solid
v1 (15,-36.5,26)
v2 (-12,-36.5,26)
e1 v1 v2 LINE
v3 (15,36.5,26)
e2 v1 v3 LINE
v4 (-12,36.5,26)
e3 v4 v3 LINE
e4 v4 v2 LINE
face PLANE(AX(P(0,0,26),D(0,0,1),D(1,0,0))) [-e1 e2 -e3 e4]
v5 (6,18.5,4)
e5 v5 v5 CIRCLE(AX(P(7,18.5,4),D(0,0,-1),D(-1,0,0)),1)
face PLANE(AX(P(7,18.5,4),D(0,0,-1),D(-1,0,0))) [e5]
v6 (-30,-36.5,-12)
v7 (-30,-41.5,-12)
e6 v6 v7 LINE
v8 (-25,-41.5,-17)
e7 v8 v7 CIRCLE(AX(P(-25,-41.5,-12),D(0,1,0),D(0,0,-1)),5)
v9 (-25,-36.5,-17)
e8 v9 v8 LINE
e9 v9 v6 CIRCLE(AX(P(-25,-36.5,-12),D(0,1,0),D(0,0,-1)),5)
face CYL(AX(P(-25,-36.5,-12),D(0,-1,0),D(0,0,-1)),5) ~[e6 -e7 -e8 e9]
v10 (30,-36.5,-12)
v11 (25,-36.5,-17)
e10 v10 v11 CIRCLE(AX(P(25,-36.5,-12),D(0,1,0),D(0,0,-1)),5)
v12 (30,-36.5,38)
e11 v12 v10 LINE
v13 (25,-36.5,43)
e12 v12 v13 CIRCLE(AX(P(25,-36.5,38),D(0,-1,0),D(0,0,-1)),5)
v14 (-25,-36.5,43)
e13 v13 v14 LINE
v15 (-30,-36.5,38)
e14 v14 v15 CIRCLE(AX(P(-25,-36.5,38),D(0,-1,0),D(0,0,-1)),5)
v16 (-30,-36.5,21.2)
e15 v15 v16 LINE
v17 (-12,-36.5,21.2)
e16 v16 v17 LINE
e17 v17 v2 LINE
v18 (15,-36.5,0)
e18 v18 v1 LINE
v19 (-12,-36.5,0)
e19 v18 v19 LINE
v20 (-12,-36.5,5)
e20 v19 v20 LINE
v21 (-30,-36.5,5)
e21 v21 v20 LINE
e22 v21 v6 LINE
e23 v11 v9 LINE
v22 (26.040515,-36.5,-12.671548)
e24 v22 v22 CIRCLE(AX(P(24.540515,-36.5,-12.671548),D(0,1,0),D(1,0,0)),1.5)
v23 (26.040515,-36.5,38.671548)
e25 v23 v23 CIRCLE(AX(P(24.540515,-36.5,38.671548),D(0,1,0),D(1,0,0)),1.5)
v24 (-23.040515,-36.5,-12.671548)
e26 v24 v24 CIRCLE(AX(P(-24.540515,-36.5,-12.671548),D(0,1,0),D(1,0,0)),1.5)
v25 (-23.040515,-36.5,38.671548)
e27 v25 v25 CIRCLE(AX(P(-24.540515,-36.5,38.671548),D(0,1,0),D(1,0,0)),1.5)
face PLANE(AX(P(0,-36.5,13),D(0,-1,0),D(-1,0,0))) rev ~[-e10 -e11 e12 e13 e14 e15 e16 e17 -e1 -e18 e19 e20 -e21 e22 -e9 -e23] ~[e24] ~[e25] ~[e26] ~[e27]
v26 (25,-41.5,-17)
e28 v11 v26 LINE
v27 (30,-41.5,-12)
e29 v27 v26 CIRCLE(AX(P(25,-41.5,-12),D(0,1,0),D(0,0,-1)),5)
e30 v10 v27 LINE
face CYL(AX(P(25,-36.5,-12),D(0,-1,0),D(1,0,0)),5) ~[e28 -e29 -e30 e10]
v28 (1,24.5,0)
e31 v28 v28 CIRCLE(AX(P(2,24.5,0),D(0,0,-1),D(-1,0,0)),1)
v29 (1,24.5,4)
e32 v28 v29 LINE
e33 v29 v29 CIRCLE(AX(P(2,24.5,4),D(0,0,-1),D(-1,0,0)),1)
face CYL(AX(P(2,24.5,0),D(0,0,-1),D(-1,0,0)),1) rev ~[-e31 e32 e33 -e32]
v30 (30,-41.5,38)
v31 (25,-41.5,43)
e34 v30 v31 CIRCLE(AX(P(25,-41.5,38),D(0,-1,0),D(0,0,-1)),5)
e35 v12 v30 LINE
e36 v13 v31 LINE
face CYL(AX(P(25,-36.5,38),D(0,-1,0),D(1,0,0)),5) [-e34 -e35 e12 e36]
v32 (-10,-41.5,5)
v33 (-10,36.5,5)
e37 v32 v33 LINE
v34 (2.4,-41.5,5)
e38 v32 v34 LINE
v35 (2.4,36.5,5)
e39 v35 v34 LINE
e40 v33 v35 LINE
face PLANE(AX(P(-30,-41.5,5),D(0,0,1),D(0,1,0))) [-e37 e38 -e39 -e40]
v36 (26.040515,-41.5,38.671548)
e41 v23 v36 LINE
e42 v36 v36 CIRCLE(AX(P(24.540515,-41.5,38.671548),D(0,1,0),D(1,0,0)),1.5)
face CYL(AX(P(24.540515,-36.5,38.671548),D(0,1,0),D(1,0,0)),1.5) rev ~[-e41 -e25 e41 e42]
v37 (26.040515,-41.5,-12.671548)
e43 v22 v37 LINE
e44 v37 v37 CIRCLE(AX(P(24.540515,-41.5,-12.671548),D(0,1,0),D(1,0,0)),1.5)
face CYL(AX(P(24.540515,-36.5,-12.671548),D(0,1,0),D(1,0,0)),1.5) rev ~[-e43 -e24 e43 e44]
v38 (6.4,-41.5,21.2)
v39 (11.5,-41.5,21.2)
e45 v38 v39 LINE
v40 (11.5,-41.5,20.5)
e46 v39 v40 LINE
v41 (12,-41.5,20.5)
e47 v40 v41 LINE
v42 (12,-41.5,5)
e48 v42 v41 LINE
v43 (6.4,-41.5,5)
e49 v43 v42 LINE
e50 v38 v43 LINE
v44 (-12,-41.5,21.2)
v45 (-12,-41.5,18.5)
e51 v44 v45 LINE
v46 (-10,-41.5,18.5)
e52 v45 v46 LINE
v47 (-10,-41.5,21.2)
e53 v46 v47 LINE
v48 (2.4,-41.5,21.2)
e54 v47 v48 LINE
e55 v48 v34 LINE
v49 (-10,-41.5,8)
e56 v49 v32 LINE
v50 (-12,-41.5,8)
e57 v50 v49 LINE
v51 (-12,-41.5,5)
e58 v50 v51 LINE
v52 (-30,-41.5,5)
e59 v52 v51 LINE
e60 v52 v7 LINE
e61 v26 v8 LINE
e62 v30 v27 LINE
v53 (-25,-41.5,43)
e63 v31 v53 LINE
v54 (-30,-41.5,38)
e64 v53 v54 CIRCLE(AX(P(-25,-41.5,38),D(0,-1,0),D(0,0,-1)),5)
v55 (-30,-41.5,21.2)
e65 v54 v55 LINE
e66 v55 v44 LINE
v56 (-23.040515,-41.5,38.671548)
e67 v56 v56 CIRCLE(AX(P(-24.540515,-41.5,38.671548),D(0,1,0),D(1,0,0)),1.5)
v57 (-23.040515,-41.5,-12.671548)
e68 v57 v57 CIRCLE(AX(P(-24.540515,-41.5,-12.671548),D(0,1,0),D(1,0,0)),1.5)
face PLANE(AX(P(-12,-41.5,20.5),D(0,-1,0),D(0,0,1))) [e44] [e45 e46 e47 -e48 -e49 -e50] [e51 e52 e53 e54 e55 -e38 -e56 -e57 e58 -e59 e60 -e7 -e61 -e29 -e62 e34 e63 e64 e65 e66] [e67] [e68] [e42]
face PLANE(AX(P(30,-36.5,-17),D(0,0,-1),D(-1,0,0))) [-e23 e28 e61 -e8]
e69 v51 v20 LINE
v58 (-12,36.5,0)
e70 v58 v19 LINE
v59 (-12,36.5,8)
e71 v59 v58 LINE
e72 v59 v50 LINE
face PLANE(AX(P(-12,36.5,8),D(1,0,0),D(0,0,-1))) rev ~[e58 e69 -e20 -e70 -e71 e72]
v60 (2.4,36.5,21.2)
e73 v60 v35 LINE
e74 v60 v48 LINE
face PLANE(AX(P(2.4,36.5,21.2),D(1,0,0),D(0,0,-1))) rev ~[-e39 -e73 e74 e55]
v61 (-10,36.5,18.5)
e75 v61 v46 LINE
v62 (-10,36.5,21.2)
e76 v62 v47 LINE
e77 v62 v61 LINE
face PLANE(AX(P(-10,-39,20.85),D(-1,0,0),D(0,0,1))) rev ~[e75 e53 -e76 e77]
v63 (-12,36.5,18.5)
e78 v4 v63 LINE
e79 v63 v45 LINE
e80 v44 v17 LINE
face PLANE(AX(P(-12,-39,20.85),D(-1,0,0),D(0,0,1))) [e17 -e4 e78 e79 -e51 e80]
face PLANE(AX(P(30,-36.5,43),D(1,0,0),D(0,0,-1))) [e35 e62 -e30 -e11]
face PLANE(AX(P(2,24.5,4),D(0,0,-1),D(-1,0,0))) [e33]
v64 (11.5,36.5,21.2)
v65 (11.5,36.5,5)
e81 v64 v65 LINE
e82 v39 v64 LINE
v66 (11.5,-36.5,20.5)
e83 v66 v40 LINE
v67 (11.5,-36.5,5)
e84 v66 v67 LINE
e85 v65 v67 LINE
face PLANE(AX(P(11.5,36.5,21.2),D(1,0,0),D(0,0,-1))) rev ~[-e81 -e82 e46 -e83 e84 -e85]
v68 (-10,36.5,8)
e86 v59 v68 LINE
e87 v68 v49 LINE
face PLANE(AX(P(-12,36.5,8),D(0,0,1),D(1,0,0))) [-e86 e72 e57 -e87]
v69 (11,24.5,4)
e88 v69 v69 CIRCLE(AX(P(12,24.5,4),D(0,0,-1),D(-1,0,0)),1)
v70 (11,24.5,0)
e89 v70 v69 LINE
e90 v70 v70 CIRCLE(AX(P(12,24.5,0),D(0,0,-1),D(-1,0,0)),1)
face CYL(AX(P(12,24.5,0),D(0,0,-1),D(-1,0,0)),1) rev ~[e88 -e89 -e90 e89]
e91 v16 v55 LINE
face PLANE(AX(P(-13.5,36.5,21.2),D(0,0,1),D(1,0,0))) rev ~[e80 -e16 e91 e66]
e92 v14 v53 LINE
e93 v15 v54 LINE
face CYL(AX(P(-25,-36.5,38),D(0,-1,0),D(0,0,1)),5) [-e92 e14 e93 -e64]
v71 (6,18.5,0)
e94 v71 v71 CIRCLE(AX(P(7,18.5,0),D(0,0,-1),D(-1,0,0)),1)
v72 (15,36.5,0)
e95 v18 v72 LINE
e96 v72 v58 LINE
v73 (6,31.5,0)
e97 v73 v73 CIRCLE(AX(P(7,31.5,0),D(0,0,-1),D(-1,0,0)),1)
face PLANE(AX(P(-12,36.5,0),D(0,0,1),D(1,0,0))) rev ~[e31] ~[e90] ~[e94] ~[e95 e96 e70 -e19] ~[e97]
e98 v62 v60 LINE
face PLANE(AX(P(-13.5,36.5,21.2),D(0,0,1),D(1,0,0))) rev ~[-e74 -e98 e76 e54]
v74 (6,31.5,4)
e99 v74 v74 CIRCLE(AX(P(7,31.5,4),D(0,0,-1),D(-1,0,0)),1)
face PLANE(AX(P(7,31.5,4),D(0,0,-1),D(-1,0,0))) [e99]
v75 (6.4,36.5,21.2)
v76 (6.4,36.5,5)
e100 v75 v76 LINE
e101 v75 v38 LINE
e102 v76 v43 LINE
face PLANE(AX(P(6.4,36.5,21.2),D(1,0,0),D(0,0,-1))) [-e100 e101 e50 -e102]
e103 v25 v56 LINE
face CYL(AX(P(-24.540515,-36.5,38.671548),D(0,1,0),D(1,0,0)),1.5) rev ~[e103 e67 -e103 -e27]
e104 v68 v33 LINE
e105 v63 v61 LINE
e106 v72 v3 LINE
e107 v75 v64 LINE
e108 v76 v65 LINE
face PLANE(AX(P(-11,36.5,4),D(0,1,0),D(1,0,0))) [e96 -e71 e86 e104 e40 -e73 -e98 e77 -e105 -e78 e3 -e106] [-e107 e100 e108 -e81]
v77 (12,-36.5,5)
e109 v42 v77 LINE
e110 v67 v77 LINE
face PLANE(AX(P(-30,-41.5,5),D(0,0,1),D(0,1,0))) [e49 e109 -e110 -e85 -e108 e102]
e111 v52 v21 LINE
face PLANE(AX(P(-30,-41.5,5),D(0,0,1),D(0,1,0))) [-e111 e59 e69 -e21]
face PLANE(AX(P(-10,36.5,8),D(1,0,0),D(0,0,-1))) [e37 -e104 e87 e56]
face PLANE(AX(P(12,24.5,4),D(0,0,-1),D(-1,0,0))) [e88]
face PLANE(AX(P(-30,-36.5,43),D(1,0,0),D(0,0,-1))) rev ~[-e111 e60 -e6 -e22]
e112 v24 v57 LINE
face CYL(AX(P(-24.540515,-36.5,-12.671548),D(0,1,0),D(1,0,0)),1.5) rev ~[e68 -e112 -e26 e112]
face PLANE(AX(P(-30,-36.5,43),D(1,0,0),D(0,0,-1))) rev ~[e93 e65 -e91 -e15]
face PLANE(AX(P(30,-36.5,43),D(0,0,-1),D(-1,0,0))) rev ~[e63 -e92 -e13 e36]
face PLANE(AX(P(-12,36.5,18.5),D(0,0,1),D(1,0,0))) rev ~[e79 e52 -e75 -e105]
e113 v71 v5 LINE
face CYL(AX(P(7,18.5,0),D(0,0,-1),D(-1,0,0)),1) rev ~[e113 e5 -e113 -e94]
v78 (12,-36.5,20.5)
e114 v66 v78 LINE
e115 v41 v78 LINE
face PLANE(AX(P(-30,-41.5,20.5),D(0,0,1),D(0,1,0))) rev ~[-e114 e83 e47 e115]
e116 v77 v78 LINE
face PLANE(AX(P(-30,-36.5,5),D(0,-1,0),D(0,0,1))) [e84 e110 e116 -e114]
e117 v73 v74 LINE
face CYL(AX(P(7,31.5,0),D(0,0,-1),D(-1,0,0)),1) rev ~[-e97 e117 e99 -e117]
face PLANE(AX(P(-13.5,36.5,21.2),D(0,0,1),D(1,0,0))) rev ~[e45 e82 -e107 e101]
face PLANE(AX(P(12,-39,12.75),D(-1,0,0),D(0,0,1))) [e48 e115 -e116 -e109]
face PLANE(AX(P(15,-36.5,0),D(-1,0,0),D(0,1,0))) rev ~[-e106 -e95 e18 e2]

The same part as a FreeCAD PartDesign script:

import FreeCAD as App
import Part
import Sketcher
Q = App.Units.Quantity


def edges_at(feature, points):
    """Names of the edges that pass closest to the given points."""
    edges = feature.Shape.Edges
    near = lambda p: min(range(len(edges)), key=lambda i: edges[i].distToShape(Part.Vertex(*p))[0])
    return sorted({f"Edge{near(p) + 1}" for p in points})

doc = App.newDocument("Part")
params = doc.addObject("Spreadsheet::Sheet", "Params")
for row, (alias, value) in enumerate([
    ("sketch1_width", "30 mm"),
    ("sketch1_height", "73 mm"),
    ("pad1_length", "26 mm"),
    ("sketch2_width", "25 mm"),
    ("sketch2_height", "16.2 mm"),
    ("sketch3_width", "24 mm"),
    ("sketch3_height", "26 mm"),
    ("pocket2_length", "5 mm"),
    ("sketch4_width", "60 mm"),
    ("pad2_length", "5 mm"),
    ("fillet_radius", "5 mm"),
    ("sketch5_diameter", "3 mm"),
    ("pocket3_length", "5 mm"),
    ("sketch6_diameter", "2 mm"),
    ("pocket4_length", "4 mm"),
    ("sketch7_width", "5 mm"),
    ("sketch7_height", "15.5 mm"),
    ("pocket5_length", "42 mm"),
    ("sketch8_width", "5 mm"),
    ("sketch8_height", "26 mm"),
    ("pocket6_length", "73 mm"),
    ("sketch9_width", "2 mm"),
    ("sketch9_height", "8 mm"),
    ("sketch9_height2", "7.5 mm"),
    ("pad3_length", "78 mm"),
    ("sketch10_width", "41.5 mm"),
    ("sketch10_height", "0.7 mm"),
    ("sketch11_width", "5 mm"),
    ("sketch11_height", "0.7 mm"),
    ("pad4_length", "2 mm"),
    ("sketch12_width", "4 mm"),
    ("sketch12_height", "16.2 mm"),
    ("pad5_length", "78 mm"),
], start=1):
    params.set(f"A{row}", alias)
    params.set(f"B{row}", "=" + value)
    params.setAlias(f"B{row}", alias)

body = doc.addObject("PartDesign::Body", "Body")

sketch1 = body.newObject("Sketcher::SketchObject", "Sketch")
sketch1.AttachmentSupport = (doc.getObject("XY_Plane"), [""])
sketch1.MapMode = "FlatFace"
sketch1.addGeometry([
    Part.LineSegment(App.Vector(-15, 36.5, 0), App.Vector(-15, -36.5, 0)),
    Part.LineSegment(App.Vector(-15, -36.5, 0), App.Vector(15, -36.5, 0)),
    Part.LineSegment(App.Vector(15, -36.5, 0), App.Vector(15, 36.5, 0)),
    Part.LineSegment(App.Vector(15, 36.5, 0), App.Vector(-15, 36.5, 0)),
], False)
sketch1.addConstraint([
    Sketcher.Constraint("Coincident", 0, 2, 1, 1),
    Sketcher.Constraint("Coincident", 1, 2, 2, 1),
    Sketcher.Constraint("Coincident", 2, 2, 3, 1),
    Sketcher.Constraint("Coincident", 3, 2, 0, 1),
    Sketcher.Constraint("Vertical", 0),
    Sketcher.Constraint("Horizontal", 1),
    Sketcher.Constraint("Vertical", 2),
    Sketcher.Constraint("Horizontal", 3),
    Sketcher.Constraint("Symmetric", 0, 2, 2, 2, -1, 1),
    Sketcher.Constraint("DistanceX", 1, 1, 1, 2, Q("30 mm")),
    Sketcher.Constraint("DistanceY", 0, 2, 0, 1, Q("73 mm")),
])
sketch1.setExpression("Constraints[9]", "Params.sketch1_width")
sketch1.setExpression("Constraints[10]", "Params.sketch1_height")
pad1 = body.newObject("PartDesign::Pad", "Pad")
pad1.Profile = sketch1
pad1.setExpression("Length", "Params.pad1_length")

sketch2 = body.newObject("Sketcher::SketchObject", "Sketch001")
sketch2.AttachmentSupport = (doc.getObject("XZ_Plane"), [""])
sketch2.MapMode = "FlatFace"
sketch2.AttachmentOffset = App.Placement(App.Vector(0, 0, -36.5), App.Rotation())
sketch2.addGeometry([
    Part.LineSegment(App.Vector(-13.5, 5, 0), App.Vector(-13.5, 21.2, 0)),
    Part.LineSegment(App.Vector(-13.5, 21.2, 0), App.Vector(11.5, 21.2, 0)),
    Part.LineSegment(App.Vector(11.5, 21.2, 0), App.Vector(11.5, 5, 0)),
    Part.LineSegment(App.Vector(11.5, 5, 0), App.Vector(-13.5, 5, 0)),
], False)
sketch2.addConstraint([
    Sketcher.Constraint("Coincident", 0, 2, 1, 1),
    Sketcher.Constraint("Coincident", 1, 2, 2, 1),
    Sketcher.Constraint("Coincident", 2, 2, 3, 1),
    Sketcher.Constraint("Coincident", 3, 2, 0, 1),
    Sketcher.Constraint("Vertical", 0),
    Sketcher.Constraint("Horizontal", 1),
    Sketcher.Constraint("Vertical", 2),
    Sketcher.Constraint("Horizontal", 3),
    Sketcher.Constraint("DistanceX", 1, 1, 1, 2, Q("25 mm")),
    Sketcher.Constraint("DistanceY", 0, 1, 0, 2, Q("16.2 mm")),
    Sketcher.Constraint("DistanceY", -1, 1, 2, 2, Q("5 mm")),
    Sketcher.Constraint("DistanceX", 0, 2, -1, 1, Q("13.5 mm")),
])
sketch2.setExpression("Constraints[8]", "Params.sketch2_width")
sketch2.setExpression("Constraints[9]", "Params.sketch2_height")
pocket1 = body.newObject("PartDesign::Pocket", "Pocket")
pocket1.Profile = sketch2
pocket1.Type = "ThroughAll"
pocket1.Reversed = True

sketch3 = body.newObject("Sketcher::SketchObject", "Sketch002")
sketch3.AttachmentSupport = (doc.getObject("YZ_Plane"), [""])
sketch3.MapMode = "FlatFace"
sketch3.AttachmentOffset = App.Placement(App.Vector(0, 0, -15), App.Rotation())
sketch3.addGeometry([
    Part.LineSegment(App.Vector(33.5, 0, 0), App.Vector(9.5, 0, 0)),
    Part.LineSegment(App.Vector(9.5, 0, 0), App.Vector(9.5, 26, 0)),
    Part.LineSegment(App.Vector(9.5, 26, 0), App.Vector(33.5, 26, 0)),
    Part.LineSegment(App.Vector(33.5, 26, 0), App.Vector(33.5, 0, 0)),
    Part.LineSegment(App.Vector(6.5, 0, 0), App.Vector(-17.5, 0, 0)),
    Part.LineSegment(App.Vector(-17.5, 0, 0), App.Vector(-17.5, 26, 0)),
    Part.LineSegment(App.Vector(-17.5, 26, 0), App.Vector(6.5, 26, 0)),
    Part.LineSegment(App.Vector(6.5, 26, 0), App.Vector(6.5, 0, 0)),
    Part.LineSegment(App.Vector(-20.5, 0, 0), App.Vector(-36.734223, 0, 0)),
    Part.LineSegment(App.Vector(-36.734223, 0, 0), App.Vector(-36.734223, 26, 0)),
    Part.LineSegment(App.Vector(-36.734223, 26, 0), App.Vector(-20.5, 26, 0)),
    Part.LineSegment(App.Vector(-20.5, 26, 0), App.Vector(-20.5, 0, 0)),
], False)
sketch3.addConstraint([
    Sketcher.Constraint("Coincident", 0, 2, 1, 1),
    Sketcher.Constraint("Coincident", 1, 2, 2, 1),
    Sketcher.Constraint("Coincident", 2, 2, 3, 1),
    Sketcher.Constraint("Coincident", 3, 2, 0, 1),
    Sketcher.Constraint("Coincident", 4, 2, 5, 1),
    Sketcher.Constraint("Coincident", 5, 2, 6, 1),
    Sketcher.Constraint("Coincident", 6, 2, 7, 1),
    Sketcher.Constraint("Coincident", 7, 2, 4, 1),
    Sketcher.Constraint("Coincident", 8, 2, 9, 1),
    Sketcher.Constraint("Coincident", 9, 2, 10, 1),
    Sketcher.Constraint("Coincident", 10, 2, 11, 1),
    Sketcher.Constraint("Coincident", 11, 2, 8, 1),
    Sketcher.Constraint("Horizontal", 0),
    Sketcher.Constraint("Vertical", 1),
    Sketcher.Constraint("Horizontal", 2),
    Sketcher.Constraint("Vertical", 3),
    Sketcher.Constraint("Horizontal", 4),
    Sketcher.Constraint("Vertical", 5),
    Sketcher.Constraint("Horizontal", 6),
    Sketcher.Constraint("Vertical", 7),
    Sketcher.Constraint("Horizontal", 8),
    Sketcher.Constraint("Vertical", 9),
    Sketcher.Constraint("Horizontal", 10),
    Sketcher.Constraint("Vertical", 11),
    Sketcher.Constraint("PointOnObject", 0, 2, -1),
    Sketcher.Constraint("PointOnObject", 4, 2, -1),
    Sketcher.Constraint("PointOnObject", 8, 2, -1),
    Sketcher.Constraint("Horizontal", 2, 2, 5, 2),
    Sketcher.Constraint("Horizontal", 6, 2, 9, 2),
    Sketcher.Constraint("Equal", 2, 4),
    Sketcher.Constraint("DistanceX", 0, 2, 0, 1, Q("24 mm")),
    Sketcher.Constraint("DistanceY", 1, 1, 1, 2, Q("26 mm")),
    Sketcher.Constraint("DistanceX", 4, 2, 0, 2, Q("27 mm")),
    Sketcher.Constraint("DistanceX", 10, 2, 5, 2, Q("3 mm")),
    Sketcher.Constraint("DistanceX", -1, 1, 0, 2, Q("9.5 mm")),
    Sketcher.Constraint("DistanceX", 8, 2, 8, 1, Q("16.234223 mm")),
])
sketch3.setExpression("Constraints[30]", "Params.sketch3_width")
sketch3.setExpression("Constraints[31]", "Params.sketch3_height")
pocket2 = body.newObject("PartDesign::Pocket", "Pocket001")
pocket2.Profile = sketch3
pocket2.setExpression("Length", "Params.pocket2_length")
pocket2.Reversed = True

sketch4 = body.newObject("Sketcher::SketchObject", "Sketch003")
sketch4.AttachmentSupport = (doc.getObject("XZ_Plane"), [""])
sketch4.MapMode = "FlatFace"
sketch4.AttachmentOffset = App.Placement(App.Vector(0, 0, 36.5), App.Rotation())
sketch4.addGeometry([
    Part.LineSegment(App.Vector(30, -17, 0), App.Vector(30, 43, 0)),
    Part.LineSegment(App.Vector(30, 43, 0), App.Vector(-30, 43, 0)),
    Part.LineSegment(App.Vector(-30, 43, 0), App.Vector(-30, -17, 0)),
    Part.LineSegment(App.Vector(-30, -17, 0), App.Vector(30, -17, 0)),
], False)
sketch4.addConstraint([
    Sketcher.Constraint("Coincident", 0, 2, 1, 1),
    Sketcher.Constraint("Coincident", 1, 2, 2, 1),
    Sketcher.Constraint("Coincident", 2, 2, 3, 1),
    Sketcher.Constraint("Coincident", 3, 2, 0, 1),
    Sketcher.Constraint("Vertical", 0),
    Sketcher.Constraint("Horizontal", 1),
    Sketcher.Constraint("Vertical", 2),
    Sketcher.Constraint("Horizontal", 3),
    Sketcher.Constraint("Equal", 3, 0),
    Sketcher.Constraint("DistanceX", 1, 2, 1, 1, Q("60 mm")),
    Sketcher.Constraint("DistanceX", -1, 1, 0, 2, Q("30 mm")),
    Sketcher.Constraint("DistanceY", -1, 1, 0, 2, Q("43 mm")),
])
sketch4.setExpression("Constraints[9]", "Params.sketch4_width")
pad2 = body.newObject("PartDesign::Pad", "Pad001")
pad2.Profile = sketch4
pad2.setExpression("Length", "Params.pad2_length")
doc.recompute()

fillet = body.newObject("PartDesign::Fillet", "Fillet")
fillet.Base = (pad2, edges_at(pad2, [
    (30, -39, -17),
    (30, -39, 43),
    (-30, -39, 43),
    (-30, -39, -17),
]))
fillet.setExpression("Radius", "Params.fillet_radius")

sketch5 = body.newObject("Sketcher::SketchObject", "Sketch004")
sketch5.AttachmentSupport = (doc.getObject("XZ_Plane"), [""])
sketch5.MapMode = "FlatFace"
sketch5.AttachmentOffset = App.Placement(App.Vector(0, 0, 36.5), App.Rotation())
sketch5.addGeometry([
    Part.Circle(App.Vector(-24.540515, -12.671548, 0), App.Vector(0, 0, 1), 1.5),
    Part.Circle(App.Vector(24.540515, -12.671548, 0), App.Vector(0, 0, 1), 1.5),
    Part.Circle(App.Vector(-24.540515, 38.671548, 0), App.Vector(0, 0, 1), 1.5),
    Part.Circle(App.Vector(24.540515, 38.671548, 0), App.Vector(0, 0, 1), 1.5),
], False)
sketch5.addConstraint([
    Sketcher.Constraint("Equal", 0, 1),
    Sketcher.Constraint("Equal", 1, 2),
    Sketcher.Constraint("Equal", 2, 3),
    Sketcher.Constraint("Symmetric", 0, 3, 1, 3, -2),
    Sketcher.Constraint("Symmetric", 2, 3, 3, 3, -2),
    Sketcher.Constraint("Vertical", 0, 3, 2, 3),
    Sketcher.Constraint("Diameter", 0, Q("3 mm")),
    Sketcher.Constraint("DistanceY", 0, 3, -1, 1, Q("12.671548 mm")),
    Sketcher.Constraint("DistanceY", -1, 1, 2, 3, Q("38.671548 mm")),
    Sketcher.Constraint("DistanceX", 0, 3, 1, 3, Q("49.08103 mm")),
])
sketch5.setExpression("Constraints[6]", "Params.sketch5_diameter")
pocket3 = body.newObject("PartDesign::Pocket", "Pocket002")
pocket3.Profile = sketch5
pocket3.setExpression("Length", "Params.pocket3_length")
pocket3.Reversed = True

sketch6 = body.newObject("Sketcher::SketchObject", "Sketch005")
sketch6.AttachmentSupport = (doc.getObject("XY_Plane"), [""])
sketch6.MapMode = "FlatFace"
sketch6.addGeometry([
    Part.Circle(App.Vector(7, 31.5, 0), App.Vector(0, 0, 1), 1),
    Part.Circle(App.Vector(12, 24.5, 0), App.Vector(0, 0, 1), 1),
    Part.Circle(App.Vector(2, 24.5, 0), App.Vector(0, 0, 1), 1),
    Part.Circle(App.Vector(7, 18.5, 0), App.Vector(0, 0, 1), 1),
], False)
sketch6.addConstraint([
    Sketcher.Constraint("Equal", 0, 1),
    Sketcher.Constraint("Equal", 1, 2),
    Sketcher.Constraint("Equal", 2, 3),
    Sketcher.Constraint("Horizontal", 1, 3, 2, 3),
    Sketcher.Constraint("Vertical", 0, 3, 3, 3),
    Sketcher.Constraint("Diameter", 0, Q("2 mm")),
    Sketcher.Constraint("DistanceX", -1, 1, 0, 3, Q("7 mm")),
    Sketcher.Constraint("DistanceX", -1, 1, 1, 3, Q("12 mm")),
    Sketcher.Constraint("DistanceX", -1, 1, 2, 3, Q("2 mm")),
    Sketcher.Constraint("DistanceY", 1, 3, 0, 3, Q("7 mm")),
    Sketcher.Constraint("DistanceY", 3, 3, 1, 3, Q("6 mm")),
    Sketcher.Constraint("DistanceY", -1, 1, 0, 3, Q("31.5 mm")),
])
sketch6.setExpression("Constraints[5]", "Params.sketch6_diameter")
pocket4 = body.newObject("PartDesign::Pocket", "Pocket003")
pocket4.Profile = sketch6
pocket4.setExpression("Length", "Params.pocket4_length")
pocket4.Reversed = True

sketch7 = body.newObject("Sketcher::SketchObject", "Sketch006")
sketch7.AttachmentSupport = (doc.getObject("YZ_Plane"), [""])
sketch7.MapMode = "FlatFace"
sketch7.AttachmentOffset = App.Placement(App.Vector(0, 0, -30), App.Rotation())
sketch7.addGeometry([
    Part.LineSegment(App.Vector(-36.5, 5, 0), App.Vector(-41.5, 5, 0)),
    Part.LineSegment(App.Vector(-41.5, 5, 0), App.Vector(-41.5, 20.5, 0)),
    Part.LineSegment(App.Vector(-41.5, 20.5, 0), App.Vector(-36.5, 20.5, 0)),
    Part.LineSegment(App.Vector(-36.5, 20.5, 0), App.Vector(-36.5, 5, 0)),
], False)
sketch7.addConstraint([
    Sketcher.Constraint("Coincident", 0, 2, 1, 1),
    Sketcher.Constraint("Coincident", 1, 2, 2, 1),
    Sketcher.Constraint("Coincident", 2, 2, 3, 1),
    Sketcher.Constraint("Coincident", 3, 2, 0, 1),
    Sketcher.Constraint("Horizontal", 0),
    Sketcher.Constraint("Vertical", 1),
    Sketcher.Constraint("Horizontal", 2),
    Sketcher.Constraint("Vertical", 3),
    Sketcher.Constraint("DistanceX", 0, 2, 0, 1, Q("5 mm")),
    Sketcher.Constraint("DistanceY", 1, 1, 1, 2, Q("15.5 mm")),
    Sketcher.Constraint("DistanceY", -1, 1, 0, 2, Q("5 mm")),
    Sketcher.Constraint("DistanceX", 0, 2, -1, 1, Q("41.5 mm")),
])
sketch7.setExpression("Constraints[8]", "Params.sketch7_width")
sketch7.setExpression("Constraints[9]", "Params.sketch7_height")
pocket5 = body.newObject("PartDesign::Pocket", "Pocket004")
pocket5.Profile = sketch7
pocket5.setExpression("Length", "Params.pocket5_length")
pocket5.Reversed = True

sketch8 = body.newObject("Sketcher::SketchObject", "Sketch007")
sketch8.AttachmentSupport = (doc.getObject("XZ_Plane"), [""])
sketch8.MapMode = "FlatFace"
sketch8.AttachmentOffset = App.Placement(App.Vector(0, 0, -36.5), App.Rotation())
sketch8.addGeometry([
    Part.LineSegment(App.Vector(-15, 0, 0), App.Vector(-15, 26, 0)),
    Part.LineSegment(App.Vector(-15, 26, 0), App.Vector(-10, 26, 0)),
    Part.LineSegment(App.Vector(-10, 26, 0), App.Vector(-10, 0, 0)),
    Part.LineSegment(App.Vector(-10, 0, 0), App.Vector(-15, 0, 0)),
], False)
sketch8.addConstraint([
    Sketcher.Constraint("Coincident", 0, 2, 1, 1),
    Sketcher.Constraint("Coincident", 1, 2, 2, 1),
    Sketcher.Constraint("Coincident", 2, 2, 3, 1),
    Sketcher.Constraint("Coincident", 3, 2, 0, 1),
    Sketcher.Constraint("Vertical", 0),
    Sketcher.Constraint("Horizontal", 1),
    Sketcher.Constraint("Vertical", 2),
    Sketcher.Constraint("Horizontal", 3),
    Sketcher.Constraint("PointOnObject", 2, 2, -1),
    Sketcher.Constraint("DistanceX", 1, 1, 1, 2, Q("5 mm")),
    Sketcher.Constraint("DistanceY", 0, 1, 0, 2, Q("26 mm")),
    Sketcher.Constraint("DistanceX", 0, 2, -1, 1, Q("15 mm")),
])
sketch8.setExpression("Constraints[9]", "Params.sketch8_width")
sketch8.setExpression("Constraints[10]", "Params.sketch8_height")
pocket6 = body.newObject("PartDesign::Pocket", "Pocket005")
pocket6.Profile = sketch8
pocket6.setExpression("Length", "Params.pocket6_length")
pocket6.Reversed = True

sketch9 = body.newObject("Sketcher::SketchObject", "Sketch008")
sketch9.AttachmentSupport = (doc.getObject("XZ_Plane"), [""])
sketch9.MapMode = "FlatFace"
sketch9.AttachmentOffset = App.Placement(App.Vector(0, 0, -36.5), App.Rotation())
sketch9.addGeometry([
    Part.LineSegment(App.Vector(-12, 0, 0), App.Vector(-12, 8, 0)),
    Part.LineSegment(App.Vector(-12, 8, 0), App.Vector(-10, 8, 0)),
    Part.LineSegment(App.Vector(-10, 8, 0), App.Vector(-10, 0, 0)),
    Part.LineSegment(App.Vector(-10, 0, 0), App.Vector(-12, 0, 0)),
    Part.LineSegment(App.Vector(-12, 18.5, 0), App.Vector(-12, 26, 0)),
    Part.LineSegment(App.Vector(-12, 26, 0), App.Vector(-10, 26, 0)),
    Part.LineSegment(App.Vector(-10, 26, 0), App.Vector(-10, 18.5, 0)),
    Part.LineSegment(App.Vector(-10, 18.5, 0), App.Vector(-12, 18.5, 0)),
], False)
sketch9.addConstraint([
    Sketcher.Constraint("Coincident", 0, 2, 1, 1),
    Sketcher.Constraint("Coincident", 1, 2, 2, 1),
    Sketcher.Constraint("Coincident", 2, 2, 3, 1),
    Sketcher.Constraint("Coincident", 3, 2, 0, 1),
    Sketcher.Constraint("Coincident", 4, 2, 5, 1),
    Sketcher.Constraint("Coincident", 5, 2, 6, 1),
    Sketcher.Constraint("Coincident", 6, 2, 7, 1),
    Sketcher.Constraint("Coincident", 7, 2, 4, 1),
    Sketcher.Constraint("Vertical", 0),
    Sketcher.Constraint("Horizontal", 1),
    Sketcher.Constraint("Vertical", 2),
    Sketcher.Constraint("Horizontal", 3),
    Sketcher.Constraint("Vertical", 4),
    Sketcher.Constraint("Horizontal", 5),
    Sketcher.Constraint("Vertical", 6),
    Sketcher.Constraint("Horizontal", 7),
    Sketcher.Constraint("PointOnObject", 2, 2, -1),
    Sketcher.Constraint("Vertical", 3, 2, 4, 2),
    Sketcher.Constraint("Vertical", 2, 2, 5, 2),
    Sketcher.Constraint("DistanceX", 1, 1, 1, 2, Q("2 mm")),
    Sketcher.Constraint("DistanceY", 0, 1, 0, 2, Q("8 mm")),
    Sketcher.Constraint("DistanceY", 4, 1, 4, 2, Q("7.5 mm")),
    Sketcher.Constraint("DistanceX", 0, 2, -1, 1, Q("12 mm")),
    Sketcher.Constraint("DistanceY", -1, 1, 4, 2, Q("26 mm")),
])
sketch9.setExpression("Constraints[19]", "Params.sketch9_width")
sketch9.setExpression("Constraints[20]", "Params.sketch9_height")
sketch9.setExpression("Constraints[21]", "Params.sketch9_height2")
pad3 = body.newObject("PartDesign::Pad", "Pad002")
pad3.Profile = sketch9
pad3.setExpression("Length", "Params.pad3_length")

sketch10 = body.newObject("Sketcher::SketchObject", "Sketch009")
sketch10.AttachmentSupport = (doc.getObject("XZ_Plane"), [""])
sketch10.MapMode = "FlatFace"
sketch10.AttachmentOffset = App.Placement(App.Vector(0, 0, 36.5), App.Rotation())
sketch10.addGeometry([
    Part.LineSegment(App.Vector(-30, 20.5, 0), App.Vector(-30, 21.2, 0)),
    Part.LineSegment(App.Vector(-30, 21.2, 0), App.Vector(11.5, 21.2, 0)),
    Part.LineSegment(App.Vector(11.5, 21.2, 0), App.Vector(11.5, 20.5, 0)),
    Part.LineSegment(App.Vector(11.5, 20.5, 0), App.Vector(-30, 20.5, 0)),
], False)
sketch10.addConstraint([
    Sketcher.Constraint("Coincident", 0, 2, 1, 1),
    Sketcher.Constraint("Coincident", 1, 2, 2, 1),
    Sketcher.Constraint("Coincident", 2, 2, 3, 1),
    Sketcher.Constraint("Coincident", 3, 2, 0, 1),
    Sketcher.Constraint("Vertical", 0),
    Sketcher.Constraint("Horizontal", 1),
    Sketcher.Constraint("Vertical", 2),
    Sketcher.Constraint("Horizontal", 3),
    Sketcher.Constraint("DistanceX", 1, 1, 1, 2, Q("41.5 mm")),
    Sketcher.Constraint("DistanceY", 0, 1, 0, 2, Q("0.7 mm")),
    Sketcher.Constraint("DistanceX", 0, 2, -1, 1, Q("30 mm")),
    Sketcher.Constraint("DistanceY", -1, 1, 0, 2, Q("21.2 mm")),
])
sketch10.setExpression("Constraints[8]", "Params.sketch10_width")
sketch10.setExpression("Constraints[9]", "Params.sketch10_height")
pocket7 = body.newObject("PartDesign::Pocket", "Pocket006")
pocket7.Profile = sketch10
pocket7.Type = "ThroughAll"
pocket7.Reversed = True

sketch11 = body.newObject("Sketcher::SketchObject", "Sketch010")
sketch11.AttachmentSupport = (doc.getObject("YZ_Plane"), [""])
sketch11.MapMode = "FlatFace"
sketch11.AttachmentOffset = App.Placement(App.Vector(0, 0, -12), App.Rotation())
sketch11.addGeometry([
    Part.LineSegment(App.Vector(-36.5, 20.5, 0), App.Vector(-41.5, 20.5, 0)),
    Part.LineSegment(App.Vector(-41.5, 20.5, 0), App.Vector(-41.5, 21.2, 0)),
    Part.LineSegment(App.Vector(-41.5, 21.2, 0), App.Vector(-36.5, 21.2, 0)),
    Part.LineSegment(App.Vector(-36.5, 21.2, 0), App.Vector(-36.5, 20.5, 0)),
], False)
sketch11.addConstraint([
    Sketcher.Constraint("Coincident", 0, 2, 1, 1),
    Sketcher.Constraint("Coincident", 1, 2, 2, 1),
    Sketcher.Constraint("Coincident", 2, 2, 3, 1),
    Sketcher.Constraint("Coincident", 3, 2, 0, 1),
    Sketcher.Constraint("Horizontal", 0),
    Sketcher.Constraint("Vertical", 1),
    Sketcher.Constraint("Horizontal", 2),
    Sketcher.Constraint("Vertical", 3),
    Sketcher.Constraint("DistanceX", 0, 2, 0, 1, Q("5 mm")),
    Sketcher.Constraint("DistanceY", 1, 1, 1, 2, Q("0.7 mm")),
    Sketcher.Constraint("DistanceX", 0, 2, -1, 1, Q("41.5 mm")),
    Sketcher.Constraint("DistanceY", -1, 1, 0, 2, Q("20.5 mm")),
])
sketch11.setExpression("Constraints[8]", "Params.sketch11_width")
sketch11.setExpression("Constraints[9]", "Params.sketch11_height")
pad4 = body.newObject("PartDesign::Pad", "Pad003")
pad4.Profile = sketch11
pad4.setExpression("Length", "Params.pad4_length")

sketch12 = body.newObject("Sketcher::SketchObject", "Sketch011")
sketch12.AttachmentSupport = (doc.getObject("XZ_Plane"), [""])
sketch12.MapMode = "FlatFace"
sketch12.AttachmentOffset = App.Placement(App.Vector(0, 0, -36.5), App.Rotation())
sketch12.addGeometry([
    Part.LineSegment(App.Vector(2.4, 5, 0), App.Vector(2.4, 21.2, 0)),
    Part.LineSegment(App.Vector(2.4, 21.2, 0), App.Vector(6.4, 21.2, 0)),
    Part.LineSegment(App.Vector(6.4, 21.2, 0), App.Vector(6.4, 5, 0)),
    Part.LineSegment(App.Vector(6.4, 5, 0), App.Vector(2.4, 5, 0)),
], False)
sketch12.addConstraint([
    Sketcher.Constraint("Coincident", 0, 2, 1, 1),
    Sketcher.Constraint("Coincident", 1, 2, 2, 1),
    Sketcher.Constraint("Coincident", 2, 2, 3, 1),
    Sketcher.Constraint("Coincident", 3, 2, 0, 1),
    Sketcher.Constraint("Vertical", 0),
    Sketcher.Constraint("Horizontal", 1),
    Sketcher.Constraint("Vertical", 2),
    Sketcher.Constraint("Horizontal", 3),
    Sketcher.Constraint("DistanceX", 1, 1, 1, 2, Q("4 mm")),
    Sketcher.Constraint("DistanceY", 0, 1, 0, 2, Q("16.2 mm")),
    Sketcher.Constraint("DistanceY", -1, 1, 2, 2, Q("5 mm")),
    Sketcher.Constraint("DistanceX", -1, 1, 0, 2, Q("2.4 mm")),
])
sketch12.setExpression("Constraints[8]", "Params.sketch12_width")
sketch12.setExpression("Constraints[9]", "Params.sketch12_height")
pad5 = body.newObject("PartDesign::Pad", "Pad004")
pad5.Profile = sketch12
pad5.setExpression("Length", "Params.pad5_length")

doc.recompute()
